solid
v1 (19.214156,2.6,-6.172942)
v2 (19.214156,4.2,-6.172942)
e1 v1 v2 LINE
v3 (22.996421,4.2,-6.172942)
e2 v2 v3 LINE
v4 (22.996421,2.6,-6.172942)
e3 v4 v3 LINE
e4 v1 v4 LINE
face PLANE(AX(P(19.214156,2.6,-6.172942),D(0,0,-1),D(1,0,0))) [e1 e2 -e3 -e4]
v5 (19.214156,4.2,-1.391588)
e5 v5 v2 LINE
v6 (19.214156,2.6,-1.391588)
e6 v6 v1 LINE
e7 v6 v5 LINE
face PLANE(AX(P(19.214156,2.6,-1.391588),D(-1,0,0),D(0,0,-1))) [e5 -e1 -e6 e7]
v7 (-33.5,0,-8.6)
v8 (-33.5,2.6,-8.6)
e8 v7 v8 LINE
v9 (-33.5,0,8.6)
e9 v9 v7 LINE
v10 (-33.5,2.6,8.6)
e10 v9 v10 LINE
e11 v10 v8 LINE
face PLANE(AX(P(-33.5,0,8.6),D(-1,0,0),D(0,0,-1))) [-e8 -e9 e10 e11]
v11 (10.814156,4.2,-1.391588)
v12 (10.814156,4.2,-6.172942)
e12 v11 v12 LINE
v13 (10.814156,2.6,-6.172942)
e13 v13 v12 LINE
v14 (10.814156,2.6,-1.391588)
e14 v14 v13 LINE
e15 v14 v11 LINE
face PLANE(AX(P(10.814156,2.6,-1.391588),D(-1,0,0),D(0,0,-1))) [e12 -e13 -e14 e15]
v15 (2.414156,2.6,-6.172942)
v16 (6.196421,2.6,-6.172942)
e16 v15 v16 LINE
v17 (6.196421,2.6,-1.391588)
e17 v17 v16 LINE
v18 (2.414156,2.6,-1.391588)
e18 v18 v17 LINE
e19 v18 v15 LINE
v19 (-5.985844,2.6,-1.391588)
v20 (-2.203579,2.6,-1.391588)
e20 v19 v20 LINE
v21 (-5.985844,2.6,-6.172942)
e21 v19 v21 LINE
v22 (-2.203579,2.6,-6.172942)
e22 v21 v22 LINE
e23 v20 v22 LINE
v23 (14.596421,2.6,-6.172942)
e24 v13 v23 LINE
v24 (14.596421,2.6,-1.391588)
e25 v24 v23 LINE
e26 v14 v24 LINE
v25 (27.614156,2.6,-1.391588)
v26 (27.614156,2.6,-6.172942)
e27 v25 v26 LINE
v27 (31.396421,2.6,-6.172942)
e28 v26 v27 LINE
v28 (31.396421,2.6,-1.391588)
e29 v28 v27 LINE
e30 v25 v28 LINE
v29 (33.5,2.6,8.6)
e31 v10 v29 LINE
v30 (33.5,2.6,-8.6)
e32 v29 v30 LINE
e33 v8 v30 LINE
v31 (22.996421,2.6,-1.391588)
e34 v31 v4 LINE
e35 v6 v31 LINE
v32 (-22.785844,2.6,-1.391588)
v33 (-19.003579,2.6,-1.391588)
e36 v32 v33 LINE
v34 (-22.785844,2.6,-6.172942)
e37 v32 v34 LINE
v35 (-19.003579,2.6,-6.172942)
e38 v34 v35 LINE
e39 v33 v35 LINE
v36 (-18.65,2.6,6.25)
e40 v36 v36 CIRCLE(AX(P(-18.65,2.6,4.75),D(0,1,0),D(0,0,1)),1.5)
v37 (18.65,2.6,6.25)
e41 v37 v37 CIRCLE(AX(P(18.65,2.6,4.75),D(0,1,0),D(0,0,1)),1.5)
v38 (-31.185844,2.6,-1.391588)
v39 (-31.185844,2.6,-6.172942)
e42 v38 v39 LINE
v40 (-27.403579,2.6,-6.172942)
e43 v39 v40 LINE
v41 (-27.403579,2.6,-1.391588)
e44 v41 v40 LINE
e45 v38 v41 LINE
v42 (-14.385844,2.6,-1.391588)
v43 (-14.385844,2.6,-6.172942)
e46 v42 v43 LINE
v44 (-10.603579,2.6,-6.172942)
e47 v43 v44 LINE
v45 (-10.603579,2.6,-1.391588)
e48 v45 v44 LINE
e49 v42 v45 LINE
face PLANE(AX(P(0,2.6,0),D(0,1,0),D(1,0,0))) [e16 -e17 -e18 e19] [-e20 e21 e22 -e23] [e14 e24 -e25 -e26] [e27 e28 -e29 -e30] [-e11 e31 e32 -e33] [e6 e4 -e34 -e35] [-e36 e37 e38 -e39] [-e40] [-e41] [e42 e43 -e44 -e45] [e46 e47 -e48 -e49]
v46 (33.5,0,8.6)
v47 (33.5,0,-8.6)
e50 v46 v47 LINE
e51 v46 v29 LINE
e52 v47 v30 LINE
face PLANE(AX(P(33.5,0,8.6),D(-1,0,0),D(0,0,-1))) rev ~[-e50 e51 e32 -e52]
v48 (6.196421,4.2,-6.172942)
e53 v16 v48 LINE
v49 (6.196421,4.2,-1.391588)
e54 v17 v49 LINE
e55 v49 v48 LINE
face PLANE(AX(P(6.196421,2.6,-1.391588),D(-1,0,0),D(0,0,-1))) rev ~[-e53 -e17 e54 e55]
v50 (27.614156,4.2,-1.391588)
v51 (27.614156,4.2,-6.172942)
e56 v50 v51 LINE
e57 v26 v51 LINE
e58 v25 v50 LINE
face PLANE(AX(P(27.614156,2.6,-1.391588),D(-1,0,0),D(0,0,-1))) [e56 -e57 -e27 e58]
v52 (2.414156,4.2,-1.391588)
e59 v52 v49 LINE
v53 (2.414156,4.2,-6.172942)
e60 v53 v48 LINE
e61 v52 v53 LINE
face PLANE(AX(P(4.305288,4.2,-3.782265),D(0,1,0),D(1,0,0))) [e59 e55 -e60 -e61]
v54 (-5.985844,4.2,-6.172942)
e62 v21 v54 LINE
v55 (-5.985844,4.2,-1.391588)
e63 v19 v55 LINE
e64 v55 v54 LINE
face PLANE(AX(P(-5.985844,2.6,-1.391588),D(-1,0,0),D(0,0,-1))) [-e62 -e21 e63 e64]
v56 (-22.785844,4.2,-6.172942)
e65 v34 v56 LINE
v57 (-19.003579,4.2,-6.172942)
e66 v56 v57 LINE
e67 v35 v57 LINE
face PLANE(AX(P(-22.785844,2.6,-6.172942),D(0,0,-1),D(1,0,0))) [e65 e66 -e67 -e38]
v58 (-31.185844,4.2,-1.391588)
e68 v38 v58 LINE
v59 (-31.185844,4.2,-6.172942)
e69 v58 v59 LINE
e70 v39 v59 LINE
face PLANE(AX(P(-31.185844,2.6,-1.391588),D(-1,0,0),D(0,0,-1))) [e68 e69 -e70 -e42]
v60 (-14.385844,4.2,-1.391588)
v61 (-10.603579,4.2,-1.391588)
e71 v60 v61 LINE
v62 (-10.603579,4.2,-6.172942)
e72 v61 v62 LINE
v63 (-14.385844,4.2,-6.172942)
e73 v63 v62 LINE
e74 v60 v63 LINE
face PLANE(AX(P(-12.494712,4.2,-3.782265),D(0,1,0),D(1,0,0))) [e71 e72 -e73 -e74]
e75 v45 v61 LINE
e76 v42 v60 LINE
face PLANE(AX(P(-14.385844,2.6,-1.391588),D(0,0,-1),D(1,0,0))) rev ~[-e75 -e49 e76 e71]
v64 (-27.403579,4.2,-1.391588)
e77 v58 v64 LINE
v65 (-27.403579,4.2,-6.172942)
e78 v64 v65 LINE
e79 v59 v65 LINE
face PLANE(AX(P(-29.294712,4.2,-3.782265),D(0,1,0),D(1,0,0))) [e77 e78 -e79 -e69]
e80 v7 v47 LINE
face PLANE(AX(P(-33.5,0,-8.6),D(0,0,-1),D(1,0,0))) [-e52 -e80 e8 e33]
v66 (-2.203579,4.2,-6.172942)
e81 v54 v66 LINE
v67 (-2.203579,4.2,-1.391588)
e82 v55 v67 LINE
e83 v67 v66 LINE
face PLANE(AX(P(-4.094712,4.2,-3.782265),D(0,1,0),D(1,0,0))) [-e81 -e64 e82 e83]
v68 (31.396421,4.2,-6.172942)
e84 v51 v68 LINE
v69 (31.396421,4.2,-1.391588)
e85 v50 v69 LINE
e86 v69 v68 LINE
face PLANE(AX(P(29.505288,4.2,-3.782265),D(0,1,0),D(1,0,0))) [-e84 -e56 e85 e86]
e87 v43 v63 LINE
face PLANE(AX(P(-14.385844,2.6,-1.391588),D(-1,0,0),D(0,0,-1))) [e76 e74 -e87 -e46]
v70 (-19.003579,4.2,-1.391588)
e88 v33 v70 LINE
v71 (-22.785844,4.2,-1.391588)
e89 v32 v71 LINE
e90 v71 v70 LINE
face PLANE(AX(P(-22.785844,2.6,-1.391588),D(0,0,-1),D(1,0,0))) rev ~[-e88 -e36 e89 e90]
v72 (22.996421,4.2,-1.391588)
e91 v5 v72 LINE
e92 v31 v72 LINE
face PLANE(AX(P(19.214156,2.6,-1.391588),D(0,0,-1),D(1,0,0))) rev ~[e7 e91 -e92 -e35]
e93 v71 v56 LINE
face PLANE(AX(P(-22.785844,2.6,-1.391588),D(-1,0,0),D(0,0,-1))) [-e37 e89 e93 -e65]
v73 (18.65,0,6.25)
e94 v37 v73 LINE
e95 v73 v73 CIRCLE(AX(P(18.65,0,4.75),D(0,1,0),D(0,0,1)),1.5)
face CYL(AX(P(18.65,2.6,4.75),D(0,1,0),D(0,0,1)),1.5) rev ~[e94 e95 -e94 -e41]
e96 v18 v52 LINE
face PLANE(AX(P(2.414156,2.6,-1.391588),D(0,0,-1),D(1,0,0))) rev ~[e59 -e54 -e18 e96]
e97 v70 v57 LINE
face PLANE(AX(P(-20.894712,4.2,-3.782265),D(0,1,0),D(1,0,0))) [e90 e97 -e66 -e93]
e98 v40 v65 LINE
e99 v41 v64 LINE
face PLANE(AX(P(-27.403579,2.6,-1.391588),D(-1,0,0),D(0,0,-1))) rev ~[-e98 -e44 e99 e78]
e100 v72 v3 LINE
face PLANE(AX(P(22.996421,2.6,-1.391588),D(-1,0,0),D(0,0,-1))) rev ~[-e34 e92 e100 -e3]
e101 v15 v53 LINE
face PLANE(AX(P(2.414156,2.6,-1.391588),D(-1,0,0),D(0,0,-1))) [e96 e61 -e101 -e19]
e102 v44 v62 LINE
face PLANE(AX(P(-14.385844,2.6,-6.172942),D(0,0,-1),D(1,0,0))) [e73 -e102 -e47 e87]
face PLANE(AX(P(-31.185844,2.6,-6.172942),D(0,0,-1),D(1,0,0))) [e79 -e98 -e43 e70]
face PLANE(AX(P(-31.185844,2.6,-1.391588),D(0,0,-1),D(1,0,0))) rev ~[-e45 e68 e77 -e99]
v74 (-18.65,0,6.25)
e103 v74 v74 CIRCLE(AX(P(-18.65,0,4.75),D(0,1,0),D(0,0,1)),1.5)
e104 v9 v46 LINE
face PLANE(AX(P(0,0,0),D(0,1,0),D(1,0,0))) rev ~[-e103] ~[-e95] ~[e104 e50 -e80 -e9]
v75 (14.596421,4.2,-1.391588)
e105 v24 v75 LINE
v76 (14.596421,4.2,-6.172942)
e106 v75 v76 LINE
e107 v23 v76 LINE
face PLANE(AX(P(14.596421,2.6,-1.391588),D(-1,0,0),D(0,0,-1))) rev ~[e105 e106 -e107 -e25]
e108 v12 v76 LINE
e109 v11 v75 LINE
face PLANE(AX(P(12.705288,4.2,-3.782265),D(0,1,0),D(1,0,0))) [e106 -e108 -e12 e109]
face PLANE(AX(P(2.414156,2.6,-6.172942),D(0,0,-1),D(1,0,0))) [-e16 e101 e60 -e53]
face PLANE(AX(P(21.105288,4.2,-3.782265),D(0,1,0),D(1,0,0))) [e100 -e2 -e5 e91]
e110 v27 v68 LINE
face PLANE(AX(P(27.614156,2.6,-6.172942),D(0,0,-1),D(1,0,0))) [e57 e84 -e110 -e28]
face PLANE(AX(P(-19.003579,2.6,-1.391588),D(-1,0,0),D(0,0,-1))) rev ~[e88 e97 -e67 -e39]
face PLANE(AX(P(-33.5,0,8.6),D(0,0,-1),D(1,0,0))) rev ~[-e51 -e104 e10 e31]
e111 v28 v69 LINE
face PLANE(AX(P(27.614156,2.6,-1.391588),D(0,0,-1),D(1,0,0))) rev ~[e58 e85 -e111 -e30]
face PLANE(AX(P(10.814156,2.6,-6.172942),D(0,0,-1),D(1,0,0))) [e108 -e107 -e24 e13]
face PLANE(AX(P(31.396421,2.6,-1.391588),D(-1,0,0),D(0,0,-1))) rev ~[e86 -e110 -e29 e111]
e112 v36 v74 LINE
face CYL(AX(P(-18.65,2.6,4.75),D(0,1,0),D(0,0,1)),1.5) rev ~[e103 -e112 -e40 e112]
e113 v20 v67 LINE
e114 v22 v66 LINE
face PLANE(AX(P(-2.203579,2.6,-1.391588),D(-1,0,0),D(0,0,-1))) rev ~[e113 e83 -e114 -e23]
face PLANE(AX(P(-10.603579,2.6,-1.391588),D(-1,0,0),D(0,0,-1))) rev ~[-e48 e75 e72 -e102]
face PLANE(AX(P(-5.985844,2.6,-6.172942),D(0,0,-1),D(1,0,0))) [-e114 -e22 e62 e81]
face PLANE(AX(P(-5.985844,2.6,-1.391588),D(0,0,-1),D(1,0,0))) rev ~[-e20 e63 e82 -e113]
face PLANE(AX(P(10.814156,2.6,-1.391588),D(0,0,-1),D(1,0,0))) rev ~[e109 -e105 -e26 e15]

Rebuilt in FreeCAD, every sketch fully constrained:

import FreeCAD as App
import Part
import Sketcher
from FreeCAD import Vector
Q = App.Units.Quantity

doc = App.newDocument("Part")
params = doc.addObject("Spreadsheet::Sheet", "Params")
for row, (alias, value) in enumerate([
    ("sketch1_width", "67 mm"),
    ("sketch1_height", "17.2 mm"),
    ("pad1_length", "2.6 mm"),
    ("sketch2_diameter", "3 mm"),
    ("pocket1_length", "2.6 mm"),
    ("pad2_length", "1.6 mm"),
], start=1):
    params.set(f"A{row}", alias)
    params.set(f"B{row}", "=" + value)
    params.setAlias(f"B{row}", alias)

body = doc.addObject("PartDesign::Body", "Body")

sketch1 = body.newObject("Sketcher::SketchObject", "Sketch")
sketch1.AttachmentSupport = (doc.getObject("XZ_Plane"), [""])
sketch1.MapMode = "FlatFace"
sketch1.addGeometry(Part.LineSegment(Vector(-34, -9, 0), Vector(-34, 9, 0)), False)
sketch1.addGeometry(Part.LineSegment(Vector(-34, 9, 0), Vector(34, 9, 0)), False)
sketch1.addGeometry(Part.LineSegment(Vector(34, 9, 0), Vector(34, -9, 0)), False)
sketch1.addGeometry(Part.LineSegment(Vector(34, -9, 0), Vector(-34, -9, 0)), False)
sketch1.addConstraint(Sketcher.Constraint("Coincident", 0, 2, 1, 1))
sketch1.addConstraint(Sketcher.Constraint("Coincident", 1, 2, 2, 1))
sketch1.addConstraint(Sketcher.Constraint("Coincident", 2, 2, 3, 1))
sketch1.addConstraint(Sketcher.Constraint("Coincident", 3, 2, 0, 1))
sketch1.addConstraint(Sketcher.Constraint("Vertical", 0))
sketch1.addConstraint(Sketcher.Constraint("Horizontal", 1))
sketch1.addConstraint(Sketcher.Constraint("Vertical", 2))
sketch1.addConstraint(Sketcher.Constraint("Horizontal", 3))
sketch1.addConstraint(Sketcher.Constraint("Symmetric", 0, 2, 2, 2, -1, 1))
sketch1.addConstraint(Sketcher.Constraint("DistanceX", 1, 1, 1, 2, Q("67 mm")))
sketch1.addConstraint(Sketcher.Constraint("DistanceY", 0, 1, 0, 2, Q("17.2 mm")))
sketch1.setExpression("Constraints[9]", "Params.sketch1_width")
sketch1.setExpression("Constraints[10]", "Params.sketch1_height")
pad1 = body.newObject("PartDesign::Pad", "Pad")
pad1.Profile = sketch1
pad1.setExpression("Length", "Params.pad1_length")
pad1.Reversed = True

sketch2 = body.newObject("Sketcher::SketchObject", "Sketch001")
sketch2.AttachmentSupport = (doc.getObject("XZ_Plane"), [""])
sketch2.MapMode = "FlatFace"
sketch2.AttachmentOffset = App.Placement(Vector(0, 0, -2.6), App.Rotation())
sketch2.addGeometry(Part.Circle(Vector(-18.6, 4.8, 0), Vector(0, 0, 1), 1.5), False)
sketch2.addGeometry(Part.Circle(Vector(18.6, 4.8, 0), Vector(0, 0, 1), 1.5), False)
sketch2.addConstraint(Sketcher.Constraint("Equal", 0, 1))
sketch2.addConstraint(Sketcher.Constraint("Symmetric", 0, 3, 1, 3, -2))
sketch2.addConstraint(Sketcher.Constraint("Diameter", 0, Q("3 mm")))
sketch2.addConstraint(Sketcher.Constraint("DistanceX", 0, 3, 1, 3, Q("37.3 mm")))
sketch2.addConstraint(Sketcher.Constraint("DistanceY", -1, 1, 0, 3, Q("4.75 mm")))
sketch2.setExpression("Constraints[2]", "Params.sketch2_diameter")
pocket1 = body.newObject("PartDesign::Pocket", "Pocket")
pocket1.Profile = sketch2
pocket1.setExpression("Length", "Params.pocket1_length")
pocket1.Reversed = True

sketch3 = body.newObject("Sketcher::SketchObject", "Sketch002")
sketch3.AttachmentSupport = (doc.getObject("XZ_Plane"), [""])
sketch3.MapMode = "FlatFace"
sketch3.AttachmentOffset = App.Placement(Vector(0, 0, -2.6), App.Rotation())
sketch3.addGeometry(Part.LineSegment(Vector(-22.8, -6.2, 0), Vector(-22.8, -1.4, 0)), False)
sketch3.addGeometry(Part.LineSegment(Vector(-22.8, -1.4, 0), Vector(-19, -1.4, 0)), False)
sketch3.addGeometry(Part.LineSegment(Vector(-19, -1.4, 0), Vector(-19, -6.2, 0)), False)
sketch3.addGeometry(Part.LineSegment(Vector(-19, -6.2, 0), Vector(-22.8, -6.2, 0)), False)
sketch3.addGeometry(Part.LineSegment(Vector(-31.2, -6.2, 0), Vector(-31.2, -1.4, 0)), False)
sketch3.addGeometry(Part.LineSegment(Vector(-31.2, -1.4, 0), Vector(-27.4, -1.4, 0)), False)
sketch3.addGeometry(Part.LineSegment(Vector(-27.4, -1.4, 0), Vector(-27.4, -6.2, 0)), False)
sketch3.addGeometry(Part.LineSegment(Vector(-27.4, -6.2, 0), Vector(-31.2, -6.2, 0)), False)
sketch3.addGeometry(Part.LineSegment(Vector(-14.4, -6.2, 0), Vector(-14.4, -1.4, 0)), False)
sketch3.addGeometry(Part.LineSegment(Vector(-14.4, -1.4, 0), Vector(-10.6, -1.4, 0)), False)
sketch3.addGeometry(Part.LineSegment(Vector(-10.6, -1.4, 0), Vector(-10.6, -6.2, 0)), False)
sketch3.addGeometry(Part.LineSegment(Vector(-10.6, -6.2, 0), Vector(-14.4, -6.2, 0)), False)
sketch3.addGeometry(Part.LineSegment(Vector(-6, -6.2, 0), Vector(-6, -1.4, 0)), False)
sketch3.addGeometry(Part.LineSegment(Vector(-6, -1.4, 0), Vector(-2.2, -1.4, 0)), False)
sketch3.addGeometry(Part.LineSegment(Vector(-2.2, -1.4, 0), Vector(-2.2, -6.2, 0)), False)
sketch3.addGeometry(Part.LineSegment(Vector(-2.2, -6.2, 0), Vector(-6, -6.2, 0)), False)
sketch3.addGeometry(Part.LineSegment(Vector(2.4, -6.2, 0), Vector(2.4, -1.4, 0)), False)
sketch3.addGeometry(Part.LineSegment(Vector(2.4, -1.4, 0), Vector(6.2, -1.4, 0)), False)
sketch3.addGeometry(Part.LineSegment(Vector(6.2, -1.4, 0), Vector(6.2, -6.2, 0)), False)
sketch3.addGeometry(Part.LineSegment(Vector(6.2, -6.2, 0), Vector(2.4, -6.2, 0)), False)
sketch3.addGeometry(Part.LineSegment(Vector(10.8, -6.2, 0), Vector(10.8, -1.4, 0)), False)
sketch3.addGeometry(Part.LineSegment(Vector(10.8, -1.4, 0), Vector(14.6, -1.4, 0)), False)
sketch3.addGeometry(Part.LineSegment(Vector(14.6, -1.4, 0), Vector(14.6, -6.2, 0)), False)
sketch3.addGeometry(Part.LineSegment(Vector(14.6, -6.2, 0), Vector(10.8, -6.2, 0)), False)
sketch3.addGeometry(Part.LineSegment(Vector(19.2, -6.2, 0), Vector(19.2, -1.4, 0)), False)
sketch3.addGeometry(Part.LineSegment(Vector(19.2, -1.4, 0), Vector(23, -1.4, 0)), False)
sketch3.addGeometry(Part.LineSegment(Vector(23, -1.4, 0), Vector(23, -6.2, 0)), False)
sketch3.addGeometry(Part.LineSegment(Vector(23, -6.2, 0), Vector(19.2, -6.2, 0)), False)
sketch3.addGeometry(Part.LineSegment(Vector(27.6, -6.2, 0), Vector(27.6, -1.4, 0)), False)
sketch3.addGeometry(Part.LineSegment(Vector(27.6, -1.4, 0), Vector(31.4, -1.4, 0)), False)
sketch3.addGeometry(Part.LineSegment(Vector(31.4, -1.4, 0), Vector(31.4, -6.2, 0)), False)
sketch3.addGeometry(Part.LineSegment(Vector(31.4, -6.2, 0), Vector(27.6, -6.2, 0)), False)
sketch3.addConstraint(Sketcher.Constraint("Coincident", 0, 2, 1, 1))
sketch3.addConstraint(Sketcher.Constraint("Coincident", 1, 2, 2, 1))
sketch3.addConstraint(Sketcher.Constraint("Coincident", 2, 2, 3, 1))
sketch3.addConstraint(Sketcher.Constraint("Coincident", 3, 2, 0, 1))
sketch3.addConstraint(Sketcher.Constraint("Coincident", 4, 2, 5, 1))
sketch3.addConstraint(Sketcher.Constraint("Coincident", 5, 2, 6, 1))
sketch3.addConstraint(Sketcher.Constraint("Coincident", 6, 2, 7, 1))
sketch3.addConstraint(Sketcher.Constraint("Coincident", 7, 2, 4, 1))
sketch3.addConstraint(Sketcher.Constraint("Coincident", 8, 2, 9, 1))
sketch3.addConstraint(Sketcher.Constraint("Coincident", 9, 2, 10, 1))
sketch3.addConstraint(Sketcher.Constraint("Coincident", 10, 2, 11, 1))
sketch3.addConstraint(Sketcher.Constraint("Coincident", 11, 2, 8, 1))
sketch3.addConstraint(Sketcher.Constraint("Coincident", 12, 2, 13, 1))
sketch3.addConstraint(Sketcher.Constraint("Coincident", 13, 2, 14, 1))
sketch3.addConstraint(Sketcher.Constraint("Coincident", 14, 2, 15, 1))
sketch3.addConstraint(Sketcher.Constraint("Coincident", 15, 2, 12, 1))
sketch3.addConstraint(Sketcher.Constraint("Coincident", 16, 2, 17, 1))
sketch3.addConstraint(Sketcher.Constraint("Coincident", 17, 2, 18, 1))
sketch3.addConstraint(Sketcher.Constraint("Coincident", 18, 2, 19, 1))
sketch3.addConstraint(Sketcher.Constraint("Coincident", 19, 2, 16, 1))
sketch3.addConstraint(Sketcher.Constraint("Coincident", 20, 2, 21, 1))
sketch3.addConstraint(Sketcher.Constraint("Coincident", 21, 2, 22, 1))
sketch3.addConstraint(Sketcher.Constraint("Coincident", 22, 2, 23, 1))
sketch3.addConstraint(Sketcher.Constraint("Coincident", 23, 2, 20, 1))
sketch3.addConstraint(Sketcher.Constraint("Coincident", 24, 2, 25, 1))
sketch3.addConstraint(Sketcher.Constraint("Coincident", 25, 2, 26, 1))
sketch3.addConstraint(Sketcher.Constraint("Coincident", 26, 2, 27, 1))
sketch3.addConstraint(Sketcher.Constraint("Coincident", 27, 2, 24, 1))
sketch3.addConstraint(Sketcher.Constraint("Coincident", 28, 2, 29, 1))
sketch3.addConstraint(Sketcher.Constraint("Coincident", 29, 2, 30, 1))
sketch3.addConstraint(Sketcher.Constraint("Coincident", 30, 2, 31, 1))
sketch3.addConstraint(Sketcher.Constraint("Coincident", 31, 2, 28, 1))
sketch3.addConstraint(Sketcher.Constraint("Vertical", 0))
sketch3.addConstraint(Sketcher.Constraint("Horizontal", 1))
sketch3.addConstraint(Sketcher.Constraint("Vertical", 2))
sketch3.addConstraint(Sketcher.Constraint("Horizontal", 3))
sketch3.addConstraint(Sketcher.Constraint("Vertical", 4))
sketch3.addConstraint(Sketcher.Constraint("Horizontal", 5))
sketch3.addConstraint(Sketcher.Constraint("Vertical", 6))
sketch3.addConstraint(Sketcher.Constraint("Horizontal", 7))
sketch3.addConstraint(Sketcher.Constraint("Vertical", 8))
sketch3.addConstraint(Sketcher.Constraint("Horizontal", 9))
sketch3.addConstraint(Sketcher.Constraint("Vertical", 10))
sketch3.addConstraint(Sketcher.Constraint("Horizontal", 11))
sketch3.addConstraint(Sketcher.Constraint("Vertical", 12))
sketch3.addConstraint(Sketcher.Constraint("Horizontal", 13))
sketch3.addConstraint(Sketcher.Constraint("Vertical", 14))
sketch3.addConstraint(Sketcher.Constraint("Horizontal", 15))
sketch3.addConstraint(Sketcher.Constraint("Vertical", 16))
sketch3.addConstraint(Sketcher.Constraint("Horizontal", 17))
sketch3.addConstraint(Sketcher.Constraint("Vertical", 18))
sketch3.addConstraint(Sketcher.Constraint("Horizontal", 19))
sketch3.addConstraint(Sketcher.Constraint("Vertical", 20))
sketch3.addConstraint(Sketcher.Constraint("Horizontal", 21))
sketch3.addConstraint(Sketcher.Constraint("Vertical", 22))
sketch3.addConstraint(Sketcher.Constraint("Horizontal", 23))
sketch3.addConstraint(Sketcher.Constraint("Vertical", 24))
sketch3.addConstraint(Sketcher.Constraint("Horizontal", 25))
sketch3.addConstraint(Sketcher.Constraint("Vertical", 26))
sketch3.addConstraint(Sketcher.Constraint("Horizontal", 27))
sketch3.addConstraint(Sketcher.Constraint("Vertical", 28))
sketch3.addConstraint(Sketcher.Constraint("Horizontal", 29))
sketch3.addConstraint(Sketcher.Constraint("Vertical", 30))
sketch3.addConstraint(Sketcher.Constraint("Horizontal", 31))
sketch3.addConstraint(Sketcher.Constraint("Horizontal", 1, 2, 4, 2))
sketch3.addConstraint(Sketcher.Constraint("Horizontal", 3, 2, 6, 2))
sketch3.addConstraint(Sketcher.Constraint("Horizontal", 5, 2, 8, 2))
sketch3.addConstraint(Sketcher.Constraint("Horizontal", 7, 2, 10, 2))
sketch3.addConstraint(Sketcher.Constraint("Horizontal", 9, 2, 12, 2))
sketch3.addConstraint(Sketcher.Constraint("Horizontal", 11, 2, 14, 2))
sketch3.addConstraint(Sketcher.Constraint("Horizontal", 13, 2, 16, 2))
sketch3.addConstraint(Sketcher.Constraint("Horizontal", 15, 2, 18, 2))
sketch3.addConstraint(Sketcher.Constraint("Horizontal", 17, 2, 20, 2))
sketch3.addConstraint(Sketcher.Constraint("Horizontal", 19, 2, 22, 2))
sketch3.addConstraint(Sketcher.Constraint("Horizontal", 21, 2, 24, 2))
sketch3.addConstraint(Sketcher.Constraint("Horizontal", 23, 2, 26, 2))
sketch3.addConstraint(Sketcher.Constraint("Horizontal", 25, 2, 28, 2))
sketch3.addConstraint(Sketcher.Constraint("Horizontal", 27, 2, 30, 2))
sketch3.addConstraint(Sketcher.Constraint("Equal", 3, 5))
sketch3.addConstraint(Sketcher.Constraint("Equal", 7, 9))
sketch3.addConstraint(Sketcher.Constraint("Equal", 11, 13))
sketch3.addConstraint(Sketcher.Constraint("Equal", 15, 17))
sketch3.addConstraint(Sketcher.Constraint("Equal", 19, 21))
sketch3.addConstraint(Sketcher.Constraint("Equal", 23, 25))
sketch3.addConstraint(Sketcher.Constraint("Equal", 27, 29))
sketch3.addConstraint(Sketcher.Constraint("DistanceX", 4, 2, 0, 2, Q("8.4 mm")))
sketch3.addConstraint(Sketcher.Constraint("DistanceX", 0, 2, 8, 2, Q("8.4 mm")))
sketch3.addConstraint(Sketcher.Constraint("DistanceX", 8, 2, 12, 2, Q("8.4 mm")))
sketch3.addConstraint(Sketcher.Constraint("DistanceX", 12, 2, 16, 2, Q("8.4 mm")))
sketch3.addConstraint(Sketcher.Constraint("DistanceX", 16, 2, 20, 2, Q("8.4 mm")))
sketch3.addConstraint(Sketcher.Constraint("DistanceX", 20, 2, 24, 2, Q("8.4 mm")))
sketch3.addConstraint(Sketcher.Constraint("DistanceX", 24, 2, 28, 2, Q("8.4 mm")))
sketch3.addConstraint(Sketcher.Constraint("DistanceX", 1, 1, 1, 2, Q("3.782265 mm")))
sketch3.addConstraint(Sketcher.Constraint("DistanceY", 0, 1, 0, 2, Q("4.781354 mm")))
sketch3.addConstraint(Sketcher.Constraint("DistanceY", 0, 2, -1, 1, Q("1.391588 mm")))
sketch3.addConstraint(Sketcher.Constraint("DistanceX", 1, 2, -1, 1, Q("19.003579 mm")))
pad2 = body.newObject("PartDesign::Pad", "Pad001")
pad2.Profile = sketch3
pad2.setExpression("Length", "Params.pad2_length")
pad2.Reversed = True

doc.recompute()
